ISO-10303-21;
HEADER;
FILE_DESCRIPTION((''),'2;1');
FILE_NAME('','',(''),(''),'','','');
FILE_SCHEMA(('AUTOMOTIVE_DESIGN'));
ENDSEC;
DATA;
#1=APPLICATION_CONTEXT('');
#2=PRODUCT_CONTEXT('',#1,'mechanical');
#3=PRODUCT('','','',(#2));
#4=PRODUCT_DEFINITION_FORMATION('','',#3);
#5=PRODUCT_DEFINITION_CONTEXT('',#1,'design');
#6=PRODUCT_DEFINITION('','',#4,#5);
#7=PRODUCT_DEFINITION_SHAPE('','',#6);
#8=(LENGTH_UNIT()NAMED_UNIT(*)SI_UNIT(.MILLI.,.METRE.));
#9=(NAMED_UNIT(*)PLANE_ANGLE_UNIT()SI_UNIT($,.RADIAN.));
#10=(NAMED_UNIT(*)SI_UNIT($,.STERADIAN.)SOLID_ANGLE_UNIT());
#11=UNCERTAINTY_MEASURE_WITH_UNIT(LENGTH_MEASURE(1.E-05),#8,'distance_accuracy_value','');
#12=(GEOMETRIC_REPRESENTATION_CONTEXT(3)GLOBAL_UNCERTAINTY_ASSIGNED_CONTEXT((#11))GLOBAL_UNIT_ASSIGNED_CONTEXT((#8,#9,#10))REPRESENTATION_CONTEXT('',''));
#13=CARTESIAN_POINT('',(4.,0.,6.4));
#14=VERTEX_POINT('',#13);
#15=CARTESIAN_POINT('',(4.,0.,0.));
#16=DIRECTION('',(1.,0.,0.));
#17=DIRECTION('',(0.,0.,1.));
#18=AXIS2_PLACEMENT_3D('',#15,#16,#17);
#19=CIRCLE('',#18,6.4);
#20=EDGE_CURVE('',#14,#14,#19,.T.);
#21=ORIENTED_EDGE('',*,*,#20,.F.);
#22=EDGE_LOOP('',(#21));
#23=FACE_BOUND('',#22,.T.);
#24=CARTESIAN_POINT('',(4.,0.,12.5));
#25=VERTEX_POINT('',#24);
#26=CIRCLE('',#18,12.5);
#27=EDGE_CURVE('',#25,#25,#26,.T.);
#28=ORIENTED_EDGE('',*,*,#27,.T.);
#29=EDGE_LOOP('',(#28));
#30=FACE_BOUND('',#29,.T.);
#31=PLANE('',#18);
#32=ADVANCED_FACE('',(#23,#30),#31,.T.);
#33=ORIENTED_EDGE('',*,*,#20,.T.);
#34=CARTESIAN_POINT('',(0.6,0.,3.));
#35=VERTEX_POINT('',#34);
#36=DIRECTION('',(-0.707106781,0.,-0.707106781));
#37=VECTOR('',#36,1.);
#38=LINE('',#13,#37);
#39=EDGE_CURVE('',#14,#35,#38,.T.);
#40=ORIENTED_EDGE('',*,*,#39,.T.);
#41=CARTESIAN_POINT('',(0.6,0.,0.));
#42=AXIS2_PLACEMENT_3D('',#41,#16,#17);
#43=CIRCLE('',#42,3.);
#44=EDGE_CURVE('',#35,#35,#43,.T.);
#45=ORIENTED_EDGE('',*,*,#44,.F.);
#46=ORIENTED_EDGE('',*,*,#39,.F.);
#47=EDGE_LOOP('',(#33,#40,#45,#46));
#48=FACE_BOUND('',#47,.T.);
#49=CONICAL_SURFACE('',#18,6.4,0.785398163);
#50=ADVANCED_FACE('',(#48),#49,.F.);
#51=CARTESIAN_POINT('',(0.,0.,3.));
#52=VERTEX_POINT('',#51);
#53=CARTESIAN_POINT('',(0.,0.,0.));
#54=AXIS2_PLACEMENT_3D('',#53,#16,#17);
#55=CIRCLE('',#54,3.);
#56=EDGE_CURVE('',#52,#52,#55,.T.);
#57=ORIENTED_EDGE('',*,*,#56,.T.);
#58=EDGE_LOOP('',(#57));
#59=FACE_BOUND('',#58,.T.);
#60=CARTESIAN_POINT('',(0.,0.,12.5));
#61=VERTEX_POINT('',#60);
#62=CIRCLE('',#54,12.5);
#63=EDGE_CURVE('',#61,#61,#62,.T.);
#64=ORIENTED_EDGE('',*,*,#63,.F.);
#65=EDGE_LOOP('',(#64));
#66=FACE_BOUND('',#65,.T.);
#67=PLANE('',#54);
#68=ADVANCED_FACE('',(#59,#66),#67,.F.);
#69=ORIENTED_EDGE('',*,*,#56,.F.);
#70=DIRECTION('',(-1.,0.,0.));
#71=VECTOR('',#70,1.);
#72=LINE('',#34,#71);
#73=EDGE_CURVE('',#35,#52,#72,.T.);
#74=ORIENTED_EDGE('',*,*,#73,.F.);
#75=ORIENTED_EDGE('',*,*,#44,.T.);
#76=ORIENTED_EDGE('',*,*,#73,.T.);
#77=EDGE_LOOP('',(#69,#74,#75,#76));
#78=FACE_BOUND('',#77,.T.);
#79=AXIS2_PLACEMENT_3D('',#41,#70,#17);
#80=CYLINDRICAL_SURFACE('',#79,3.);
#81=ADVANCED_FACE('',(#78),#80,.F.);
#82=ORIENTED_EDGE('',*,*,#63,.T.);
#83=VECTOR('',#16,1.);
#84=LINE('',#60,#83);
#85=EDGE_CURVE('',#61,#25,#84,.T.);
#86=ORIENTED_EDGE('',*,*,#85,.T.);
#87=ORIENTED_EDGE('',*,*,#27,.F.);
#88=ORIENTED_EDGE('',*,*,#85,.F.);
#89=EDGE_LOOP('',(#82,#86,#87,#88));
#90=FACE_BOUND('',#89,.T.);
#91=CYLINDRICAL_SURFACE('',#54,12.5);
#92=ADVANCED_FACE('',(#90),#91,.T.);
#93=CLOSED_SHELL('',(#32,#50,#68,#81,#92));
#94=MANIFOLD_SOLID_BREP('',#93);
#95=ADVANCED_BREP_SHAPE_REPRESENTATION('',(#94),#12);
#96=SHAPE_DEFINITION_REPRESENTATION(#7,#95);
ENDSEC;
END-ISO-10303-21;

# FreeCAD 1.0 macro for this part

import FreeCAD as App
import Part
import Sketcher
Q = App.Units.Quantity


def add_polygon(sketch, points):
    """Adds a closed chain of lines whose ends are joined by coincident constraints."""
    first, n = sketch.GeometryCount, len(points)
    for a, b in zip(points, points[1:] + points[:1]):
        sketch.addGeometry(Part.LineSegment(App.Vector(*a, 0), App.Vector(*b, 0)), False)
    for i in range(n):
        sketch.addConstraint(Sketcher.Constraint("Coincident", first + i, 2, first + (i + 1) % n, 1))

doc = App.newDocument("Part")
body = doc.addObject("PartDesign::Body", "Body")

# Sketch on XZ plane
sketch1 = body.newObject("Sketcher::SketchObject", "Sketch")
sketch1.AttachmentSupport = (doc.getObject("XZ_Plane"), [""])
sketch1.MapMode = "FlatFace"
add_polygon(sketch1, [(0, 12.5), (0, 3), (0.6, 3), (4, 6.4), (4, 12.5)])  # lines 0-4
sketch1.addConstraint([
    Sketcher.Constraint("Vertical", 0),
    Sketcher.Constraint("Horizontal", 1),
    Sketcher.Constraint("Vertical", 3),
    Sketcher.Constraint("Horizontal", 4),
    Sketcher.Constraint("PointOnObject", 0, 2, -2),
    Sketcher.Constraint("DistanceX", 4, 2, 4, 1, 4.0),
    Sketcher.Constraint("Angle", 2, Q("45 deg")),
    Sketcher.Constraint("DistanceX", 1, 1, 1, 2, 0.6),
    Sketcher.Constraint("DistanceY", 0, 2, 0, 1, 9.5),
    Sketcher.Constraint("DistanceY", -1, 1, 0, 2, 3.0),
])
revolution = body.newObject("PartDesign::Revolution", "Revolution")
revolution.Profile = sketch1
revolution.ReferenceAxis = (sketch1, ["H_Axis"])
revolution.Angle = 360

doc.recompute()
